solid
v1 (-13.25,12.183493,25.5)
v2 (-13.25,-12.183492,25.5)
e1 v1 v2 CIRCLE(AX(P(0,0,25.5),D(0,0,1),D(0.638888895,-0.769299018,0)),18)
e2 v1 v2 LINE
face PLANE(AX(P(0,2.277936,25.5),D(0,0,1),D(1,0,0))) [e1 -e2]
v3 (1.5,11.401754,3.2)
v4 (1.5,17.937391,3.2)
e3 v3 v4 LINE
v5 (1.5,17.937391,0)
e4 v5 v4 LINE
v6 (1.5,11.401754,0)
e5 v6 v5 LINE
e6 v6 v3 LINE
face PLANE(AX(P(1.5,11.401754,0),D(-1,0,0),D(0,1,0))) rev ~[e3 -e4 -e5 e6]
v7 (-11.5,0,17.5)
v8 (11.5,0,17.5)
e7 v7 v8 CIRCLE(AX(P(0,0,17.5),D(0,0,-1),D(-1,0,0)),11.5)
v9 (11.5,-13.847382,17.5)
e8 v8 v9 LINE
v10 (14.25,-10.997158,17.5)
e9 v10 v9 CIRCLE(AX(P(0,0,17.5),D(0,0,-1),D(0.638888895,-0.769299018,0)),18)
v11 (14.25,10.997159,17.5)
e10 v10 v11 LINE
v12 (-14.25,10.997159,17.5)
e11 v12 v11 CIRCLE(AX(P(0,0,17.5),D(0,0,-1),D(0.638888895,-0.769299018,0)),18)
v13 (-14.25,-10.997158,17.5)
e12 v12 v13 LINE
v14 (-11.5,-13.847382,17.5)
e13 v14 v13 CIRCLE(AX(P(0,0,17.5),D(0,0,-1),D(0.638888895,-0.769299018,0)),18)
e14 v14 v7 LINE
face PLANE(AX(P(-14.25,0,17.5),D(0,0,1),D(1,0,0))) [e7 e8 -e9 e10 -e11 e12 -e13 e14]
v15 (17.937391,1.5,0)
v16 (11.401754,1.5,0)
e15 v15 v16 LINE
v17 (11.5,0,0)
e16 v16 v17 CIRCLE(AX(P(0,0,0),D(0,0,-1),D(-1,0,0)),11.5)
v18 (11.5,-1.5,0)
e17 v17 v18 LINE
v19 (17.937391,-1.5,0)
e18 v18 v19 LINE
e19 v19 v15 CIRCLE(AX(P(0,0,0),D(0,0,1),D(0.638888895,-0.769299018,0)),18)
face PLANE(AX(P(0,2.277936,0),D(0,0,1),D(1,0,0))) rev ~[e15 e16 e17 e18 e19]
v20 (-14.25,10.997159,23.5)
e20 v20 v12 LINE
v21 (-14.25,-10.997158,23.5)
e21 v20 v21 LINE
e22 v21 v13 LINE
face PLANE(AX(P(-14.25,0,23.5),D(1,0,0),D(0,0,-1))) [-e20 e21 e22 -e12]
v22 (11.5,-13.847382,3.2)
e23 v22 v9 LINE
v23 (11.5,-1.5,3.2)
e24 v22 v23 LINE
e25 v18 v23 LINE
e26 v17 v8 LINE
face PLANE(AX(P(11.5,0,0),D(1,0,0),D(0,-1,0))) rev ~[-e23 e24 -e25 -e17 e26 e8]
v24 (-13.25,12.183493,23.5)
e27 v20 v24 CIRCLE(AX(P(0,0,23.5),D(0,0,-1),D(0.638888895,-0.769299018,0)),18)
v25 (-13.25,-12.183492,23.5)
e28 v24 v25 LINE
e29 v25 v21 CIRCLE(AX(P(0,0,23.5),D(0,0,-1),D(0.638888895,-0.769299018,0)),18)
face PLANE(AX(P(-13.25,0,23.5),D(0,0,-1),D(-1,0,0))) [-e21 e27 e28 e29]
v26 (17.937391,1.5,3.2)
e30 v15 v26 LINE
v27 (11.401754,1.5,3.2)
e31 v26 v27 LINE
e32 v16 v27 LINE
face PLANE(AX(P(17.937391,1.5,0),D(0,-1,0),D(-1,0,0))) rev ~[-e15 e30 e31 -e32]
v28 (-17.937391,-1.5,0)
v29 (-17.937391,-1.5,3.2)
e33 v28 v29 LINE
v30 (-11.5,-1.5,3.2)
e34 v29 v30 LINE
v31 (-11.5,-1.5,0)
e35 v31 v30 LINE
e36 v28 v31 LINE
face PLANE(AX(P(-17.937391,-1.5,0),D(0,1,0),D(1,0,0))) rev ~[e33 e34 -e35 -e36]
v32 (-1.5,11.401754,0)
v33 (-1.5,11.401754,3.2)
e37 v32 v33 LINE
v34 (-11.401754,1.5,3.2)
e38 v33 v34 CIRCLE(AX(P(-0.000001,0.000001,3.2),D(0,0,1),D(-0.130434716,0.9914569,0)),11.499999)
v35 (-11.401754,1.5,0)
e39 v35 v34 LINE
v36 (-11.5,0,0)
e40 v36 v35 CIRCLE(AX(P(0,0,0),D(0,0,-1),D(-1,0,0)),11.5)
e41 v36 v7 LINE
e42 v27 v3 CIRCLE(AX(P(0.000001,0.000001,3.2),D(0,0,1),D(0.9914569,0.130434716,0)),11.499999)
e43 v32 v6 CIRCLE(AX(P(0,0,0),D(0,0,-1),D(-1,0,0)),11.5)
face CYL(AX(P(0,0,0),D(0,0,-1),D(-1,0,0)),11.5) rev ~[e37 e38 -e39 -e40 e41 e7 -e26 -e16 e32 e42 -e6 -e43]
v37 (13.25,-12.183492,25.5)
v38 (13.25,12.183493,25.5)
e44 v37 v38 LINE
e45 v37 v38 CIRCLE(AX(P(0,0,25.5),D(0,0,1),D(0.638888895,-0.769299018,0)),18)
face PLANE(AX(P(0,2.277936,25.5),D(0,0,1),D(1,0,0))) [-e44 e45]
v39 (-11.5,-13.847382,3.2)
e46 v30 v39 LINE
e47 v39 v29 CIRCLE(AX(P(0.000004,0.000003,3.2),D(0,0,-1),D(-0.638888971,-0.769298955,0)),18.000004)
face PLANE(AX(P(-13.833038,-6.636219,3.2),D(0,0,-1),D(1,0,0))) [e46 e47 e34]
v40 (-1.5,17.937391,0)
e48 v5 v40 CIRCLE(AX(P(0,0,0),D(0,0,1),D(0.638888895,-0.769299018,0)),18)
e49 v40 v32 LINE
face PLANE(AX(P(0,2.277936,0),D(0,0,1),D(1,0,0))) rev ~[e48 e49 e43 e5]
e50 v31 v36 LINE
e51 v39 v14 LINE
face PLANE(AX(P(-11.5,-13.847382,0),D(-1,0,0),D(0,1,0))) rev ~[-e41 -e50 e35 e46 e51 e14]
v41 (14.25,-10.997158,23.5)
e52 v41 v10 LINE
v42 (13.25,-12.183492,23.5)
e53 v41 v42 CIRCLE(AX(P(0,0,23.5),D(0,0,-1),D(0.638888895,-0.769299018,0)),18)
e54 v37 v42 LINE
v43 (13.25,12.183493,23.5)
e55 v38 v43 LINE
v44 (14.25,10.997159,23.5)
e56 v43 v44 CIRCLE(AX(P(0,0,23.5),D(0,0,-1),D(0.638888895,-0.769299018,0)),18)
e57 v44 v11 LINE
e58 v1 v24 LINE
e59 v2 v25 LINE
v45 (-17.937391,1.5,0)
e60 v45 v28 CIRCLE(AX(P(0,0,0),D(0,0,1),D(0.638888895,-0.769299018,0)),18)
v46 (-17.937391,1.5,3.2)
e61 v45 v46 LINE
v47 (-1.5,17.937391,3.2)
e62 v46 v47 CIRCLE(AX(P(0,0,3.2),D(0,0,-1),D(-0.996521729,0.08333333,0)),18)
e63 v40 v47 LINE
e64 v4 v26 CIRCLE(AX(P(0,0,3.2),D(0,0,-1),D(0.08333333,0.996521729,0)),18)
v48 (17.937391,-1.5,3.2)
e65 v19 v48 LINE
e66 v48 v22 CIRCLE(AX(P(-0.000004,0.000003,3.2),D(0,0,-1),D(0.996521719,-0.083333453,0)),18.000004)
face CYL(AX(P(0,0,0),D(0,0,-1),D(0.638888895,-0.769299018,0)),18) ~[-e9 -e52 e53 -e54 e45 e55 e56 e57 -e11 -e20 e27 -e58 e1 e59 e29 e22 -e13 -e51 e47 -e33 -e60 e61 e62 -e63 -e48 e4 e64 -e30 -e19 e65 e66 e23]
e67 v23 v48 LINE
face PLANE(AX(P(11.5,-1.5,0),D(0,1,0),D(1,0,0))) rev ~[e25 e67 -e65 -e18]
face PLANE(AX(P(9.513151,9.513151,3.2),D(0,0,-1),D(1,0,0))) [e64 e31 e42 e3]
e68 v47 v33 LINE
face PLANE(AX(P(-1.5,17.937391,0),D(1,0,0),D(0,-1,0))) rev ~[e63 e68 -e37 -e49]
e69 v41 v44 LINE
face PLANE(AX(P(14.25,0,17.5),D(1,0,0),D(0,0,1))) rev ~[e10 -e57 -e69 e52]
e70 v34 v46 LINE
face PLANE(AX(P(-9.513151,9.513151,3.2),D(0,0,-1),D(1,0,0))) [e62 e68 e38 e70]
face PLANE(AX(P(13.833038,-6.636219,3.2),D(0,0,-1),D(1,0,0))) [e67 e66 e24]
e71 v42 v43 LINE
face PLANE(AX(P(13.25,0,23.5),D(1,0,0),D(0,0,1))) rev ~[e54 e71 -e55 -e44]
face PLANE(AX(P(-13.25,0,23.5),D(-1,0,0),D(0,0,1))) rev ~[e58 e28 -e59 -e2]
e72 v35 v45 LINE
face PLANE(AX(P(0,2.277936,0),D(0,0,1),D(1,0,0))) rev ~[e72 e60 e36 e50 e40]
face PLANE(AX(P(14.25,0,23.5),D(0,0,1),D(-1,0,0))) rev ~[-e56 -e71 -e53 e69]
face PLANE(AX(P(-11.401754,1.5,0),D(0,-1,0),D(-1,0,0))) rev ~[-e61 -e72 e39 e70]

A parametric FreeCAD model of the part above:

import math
import FreeCAD as App
import Part
import Sketcher

V = App.Vector

doc = App.newDocument("Part")
body = doc.addObject("PartDesign::Body", "Body")

sketch1 = doc.addObject("Sketcher::SketchObject", "Sketch")
body.addObject(sketch1)
sketch1.AttachmentSupport = (doc.XY_Plane, [""])
sketch1.MapMode = "FlatFace"
sketch1.addGeometry([
    Part.LineSegment(V(12, 0, 0), V(12, -14, 0)),
    Part.ArcOfCircle(Part.Circle(V(0, 0, 0), V(0, 0, 1), 18), math.radians(-50), math.radians(230)),
    Part.LineSegment(V(-12, -14, 0), V(-12, 0, 0)),
    Part.ArcOfCircle(Part.Circle(V(0, 0, 0), V(0, 0, 1), 12), math.radians(0), math.radians(180)),
], False)
sketch1.addConstraint([
    Sketcher.Constraint("Coincident", 0, 2, 1, 1),
    Sketcher.Constraint("Coincident", 1, 2, 2, 1),
    Sketcher.Constraint("Tangent", 2, 2, 3, 2),
    Sketcher.Constraint("Tangent", 3, 1, 0, 1),
    Sketcher.Constraint("Vertical", 0),
    Sketcher.Constraint("Vertical", 2),
    Sketcher.Constraint("Coincident", 1, 3, -1, 1),
    Sketcher.Constraint("Coincident", 3, 3, -1, 1),
    Sketcher.Constraint("Radius", 1, 18.0),
    Sketcher.Constraint("Radius", 3, 11.5),
])
pad1 = doc.addObject("PartDesign::Pad", "Pad")
body.addObject(pad1)
pad1.Profile = sketch1
pad1.Length = 25.5

sketch2 = doc.addObject("Sketcher::SketchObject", "Sketch001")
body.addObject(sketch2)
sketch2.AttachmentSupport = (doc.XZ_Plane, [""])
sketch2.MapMode = "FlatFace"
sketch2.addGeometry([
    Part.LineSegment(V(-14.2, 23.5, 0), V(-14.2, 17.5, 0)),
    Part.LineSegment(V(-14.2, 17.5, 0), V(14.2, 17.5, 0)),
    Part.LineSegment(V(14.2, 17.5, 0), V(14.2, 23.5, 0)),
    Part.LineSegment(V(14.2, 23.5, 0), V(13.2, 23.5, 0)),
    Part.LineSegment(V(13.2, 23.5, 0), V(13.2, 25.5, 0)),
    Part.LineSegment(V(13.2, 25.5, 0), V(-13.2, 25.5, 0)),
    Part.LineSegment(V(-13.2, 25.5, 0), V(-13.2, 23.5, 0)),
    Part.LineSegment(V(-13.2, 23.5, 0), V(-14.2, 23.5, 0)),
], False)
sketch2.addConstraint([
    Sketcher.Constraint("Coincident", 0, 2, 1, 1),
    Sketcher.Constraint("Coincident", 1, 2, 2, 1),
    Sketcher.Constraint("Coincident", 2, 2, 3, 1),
    Sketcher.Constraint("Coincident", 3, 2, 4, 1),
    Sketcher.Constraint("Coincident", 4, 2, 5, 1),
    Sketcher.Constraint("Coincident", 5, 2, 6, 1),
    Sketcher.Constraint("Coincident", 6, 2, 7, 1),
    Sketcher.Constraint("Coincident", 7, 2, 0, 1),
    Sketcher.Constraint("Vertical", 0),
    Sketcher.Constraint("Horizontal", 1),
    Sketcher.Constraint("Vertical", 2),
    Sketcher.Constraint("Horizontal", 3),
    Sketcher.Constraint("Vertical", 4),
    Sketcher.Constraint("Horizontal", 5),
    Sketcher.Constraint("Vertical", 6),
    Sketcher.Constraint("Horizontal", 7),
    Sketcher.Constraint("Symmetric", 3, 2, 6, 2, -2),
    Sketcher.Constraint("Equal", 3, 7),
    Sketcher.Constraint("DistanceX", 3, 2, 3, 1, 1.0),
    Sketcher.Constraint("DistanceY", 0, 2, 0, 1, 6.0),
    Sketcher.Constraint("DistanceY", 4, 1, 4, 2, 2.0),
    Sketcher.Constraint("DistanceX", 1, 1, 1, 2, 28.5),
    Sketcher.Constraint("DistanceY", -1, 1, 0, 2, 17.5),
])
pocket1 = doc.addObject("PartDesign::Pocket", "Pocket")
body.addObject(pocket1)
pocket1.Profile = sketch2
pocket1.Type = "ThroughAll"

sketch3 = doc.addObject("Sketcher::SketchObject", "Sketch002")
body.addObject(sketch3)
sketch3.AttachmentSupport = (doc.XZ_Plane, [""])
sketch3.MapMode = "FlatFace"
sketch3.addGeometry([
    Part.LineSegment(V(-14.2, 23.5, 0), V(-14.2, 17.5, 0)),
    Part.LineSegment(V(-14.2, 17.5, 0), V(14.2, 17.5, 0)),
    Part.LineSegment(V(14.2, 17.5, 0), V(14.2, 23.5, 0)),
    Part.LineSegment(V(14.2, 23.5, 0), V(13.2, 23.5, 0)),
    Part.LineSegment(V(13.2, 23.5, 0), V(13.2, 25.5, 0)),
    Part.LineSegment(V(13.2, 25.5, 0), V(-13.2, 25.5, 0)),
    Part.LineSegment(V(-13.2, 25.5, 0), V(-13.2, 23.5, 0)),
    Part.LineSegment(V(-13.2, 23.5, 0), V(-14.2, 23.5, 0)),
], False)
sketch3.addConstraint([
    Sketcher.Constraint("Coincident", 0, 2, 1, 1),
    Sketcher.Constraint("Coincident", 1, 2, 2, 1),
    Sketcher.Constraint("Coincident", 2, 2, 3, 1),
    Sketcher.Constraint("Coincident", 3, 2, 4, 1),
    Sketcher.Constraint("Coincident", 4, 2, 5, 1),
    Sketcher.Constraint("Coincident", 5, 2, 6, 1),
    Sketcher.Constraint("Coincident", 6, 2, 7, 1),
    Sketcher.Constraint("Coincident", 7, 2, 0, 1),
    Sketcher.Constraint("Vertical", 0),
    Sketcher.Constraint("Horizontal", 1),
    Sketcher.Constraint("Vertical", 2),
    Sketcher.Constraint("Horizontal", 3),
    Sketcher.Constraint("Vertical", 4),
    Sketcher.Constraint("Horizontal", 5),
    Sketcher.Constraint("Vertical", 6),
    Sketcher.Constraint("Horizontal", 7),
    Sketcher.Constraint("Symmetric", 3, 2, 6, 2, -2),
    Sketcher.Constraint("Equal", 3, 7),
    Sketcher.Constraint("DistanceX", 3, 2, 3, 1, 1.0),
    Sketcher.Constraint("DistanceY", 0, 2, 0, 1, 6.0),
    Sketcher.Constraint("DistanceY", 4, 1, 4, 2, 2.0),
    Sketcher.Constraint("DistanceX", 1, 1, 1, 2, 28.5),
    Sketcher.Constraint("DistanceY", -1, 1, 0, 2, 17.5),
])
pocket2 = doc.addObject("PartDesign::Pocket", "Pocket001")
body.addObject(pocket2)
pocket2.Profile = sketch3
pocket2.Type = "ThroughAll"
pocket2.Reversed = True

sketch4 = doc.addObject("Sketcher::SketchObject", "Sketch003")
body.addObject(sketch4)
sketch4.AttachmentSupport = (doc.XY_Plane, [""])
sketch4.MapMode = "FlatFace"
sketch4.addGeometry([
    Part.ArcOfCircle(Part.Circle(V(0, 0, 0), V(0, 0, 1), 18), math.radians(-175), math.radians(-130)),
    Part.LineSegment(V(-18, -2, 0), V(-12, -2, 0)),
    Part.LineSegment(V(-12, -2, 0), V(-12, -14, 0)),
    Part.ArcOfCircle(Part.Circle(V(0, 0, 0), V(0, 0, 1), 18), math.radians(95), math.radians(175)),
    Part.LineSegment(V(-2, 18, 0), V(-2, 11, 0)),
    Part.ArcOfCircle(Part.Circle(V(0, 0, 0), V(0, 0, 1), 11), math.radians(97), math.radians(173)),
    Part.LineSegment(V(-11, 2, 0), V(-18, 2, 0)),
    Part.LineSegment(V(2, 11, 0), V(2, 18, 0)),
    Part.ArcOfCircle(Part.Circle(V(0, 0, 0), V(0, 0, 1), 18), math.radians(5), math.radians(85)),
    Part.LineSegment(V(18, 2, 0), V(11, 2, 0)),
    Part.ArcOfCircle(Part.Circle(V(0, 0, 0), V(0, 0, 1), 11), math.radians(7), math.radians(83)),
    Part.LineSegment(V(12, -2, 0), V(18, -2, 0)),
    Part.ArcOfCircle(Part.Circle(V(0, 0, 0), V(0, 0, 1), 18), math.radians(-50), math.radians(-5)),
    Part.LineSegment(V(12, -14, 0), V(12, -2, 0)),
], False)
sketch4.addConstraint([
    Sketcher.Constraint("Coincident", 0, 1, 1, 1),
    Sketcher.Constraint("Coincident", 1, 2, 2, 1),
    Sketcher.Constraint("Coincident", 2, 2, 0, 2),
    Sketcher.Constraint("Coincident", 3, 1, 4, 1),
    Sketcher.Constraint("Coincident", 4, 2, 5, 1),
    Sketcher.Constraint("Coincident", 5, 2, 6, 1),
    Sketcher.Constraint("Coincident", 6, 2, 3, 2),
    Sketcher.Constraint("Coincident", 7, 2, 8, 2),
    Sketcher.Constraint("Coincident", 8, 1, 9, 1),
    Sketcher.Constraint("Coincident", 9, 2, 10, 1),
    Sketcher.Constraint("Coincident", 10, 2, 7, 1),
    Sketcher.Constraint("Coincident", 11, 2, 12, 2),
    Sketcher.Constraint("Coincident", 12, 1, 13, 1),
    Sketcher.Constraint("Coincident", 13, 2, 11, 1),
    Sketcher.Constraint("Horizontal", 1),
    Sketcher.Constraint("Vertical", 2),
    Sketcher.Constraint("Vertical", 4),
    Sketcher.Constraint("Horizontal", 6),
    Sketcher.Constraint("Vertical", 7),
    Sketcher.Constraint("Horizontal", 9),
    Sketcher.Constraint("Horizontal", 11),
    Sketcher.Constraint("Vertical", 13),
    Sketcher.Constraint("Coincident", 0, 3, -1, 1),
    Sketcher.Constraint("Coincident", 3, 3, -1, 1),
    Sketcher.Constraint("Coincident", 5, 3, -1, 1),
    Sketcher.Constraint("Coincident", 8, 3, -1, 1),
    Sketcher.Constraint("Coincident", 10, 3, -1, 1),
    Sketcher.Constraint("Coincident", 12, 3, -1, 1),
    Sketcher.Constraint("Equal", 3, 8),
    Sketcher.Constraint("Equal", 5, 10),
    Sketcher.Constraint("Equal", 0, 12),
    Sketcher.Constraint("Symmetric", 0, 1, 8, 1, -1, 1),
    Sketcher.Constraint("Symmetric", 1, 2, 13, 2, -2),
    Sketcher.Constraint("Horizontal", 3, 1, 7, 2),
    Sketcher.Constraint("Horizontal", 6, 2, 8, 1),
    Sketcher.Constraint("Equal", 9, 4),
    Sketcher.Constraint("Radius", 3, 18.0),
    Sketcher.Constraint("Radius", 5, 11.499999),
    Sketcher.Constraint("DistanceY", 1, 2, 5, 2, 3.0),
    Sketcher.Constraint("DistanceX", 1, 2, -1, 1, 11.5),
])
pocket3 = doc.addObject("PartDesign::Pocket", "Pocket002")
body.addObject(pocket3)
pocket3.Profile = sketch4
pocket3.Length = 3.2
pocket3.Reversed = True

doc.recompute()
